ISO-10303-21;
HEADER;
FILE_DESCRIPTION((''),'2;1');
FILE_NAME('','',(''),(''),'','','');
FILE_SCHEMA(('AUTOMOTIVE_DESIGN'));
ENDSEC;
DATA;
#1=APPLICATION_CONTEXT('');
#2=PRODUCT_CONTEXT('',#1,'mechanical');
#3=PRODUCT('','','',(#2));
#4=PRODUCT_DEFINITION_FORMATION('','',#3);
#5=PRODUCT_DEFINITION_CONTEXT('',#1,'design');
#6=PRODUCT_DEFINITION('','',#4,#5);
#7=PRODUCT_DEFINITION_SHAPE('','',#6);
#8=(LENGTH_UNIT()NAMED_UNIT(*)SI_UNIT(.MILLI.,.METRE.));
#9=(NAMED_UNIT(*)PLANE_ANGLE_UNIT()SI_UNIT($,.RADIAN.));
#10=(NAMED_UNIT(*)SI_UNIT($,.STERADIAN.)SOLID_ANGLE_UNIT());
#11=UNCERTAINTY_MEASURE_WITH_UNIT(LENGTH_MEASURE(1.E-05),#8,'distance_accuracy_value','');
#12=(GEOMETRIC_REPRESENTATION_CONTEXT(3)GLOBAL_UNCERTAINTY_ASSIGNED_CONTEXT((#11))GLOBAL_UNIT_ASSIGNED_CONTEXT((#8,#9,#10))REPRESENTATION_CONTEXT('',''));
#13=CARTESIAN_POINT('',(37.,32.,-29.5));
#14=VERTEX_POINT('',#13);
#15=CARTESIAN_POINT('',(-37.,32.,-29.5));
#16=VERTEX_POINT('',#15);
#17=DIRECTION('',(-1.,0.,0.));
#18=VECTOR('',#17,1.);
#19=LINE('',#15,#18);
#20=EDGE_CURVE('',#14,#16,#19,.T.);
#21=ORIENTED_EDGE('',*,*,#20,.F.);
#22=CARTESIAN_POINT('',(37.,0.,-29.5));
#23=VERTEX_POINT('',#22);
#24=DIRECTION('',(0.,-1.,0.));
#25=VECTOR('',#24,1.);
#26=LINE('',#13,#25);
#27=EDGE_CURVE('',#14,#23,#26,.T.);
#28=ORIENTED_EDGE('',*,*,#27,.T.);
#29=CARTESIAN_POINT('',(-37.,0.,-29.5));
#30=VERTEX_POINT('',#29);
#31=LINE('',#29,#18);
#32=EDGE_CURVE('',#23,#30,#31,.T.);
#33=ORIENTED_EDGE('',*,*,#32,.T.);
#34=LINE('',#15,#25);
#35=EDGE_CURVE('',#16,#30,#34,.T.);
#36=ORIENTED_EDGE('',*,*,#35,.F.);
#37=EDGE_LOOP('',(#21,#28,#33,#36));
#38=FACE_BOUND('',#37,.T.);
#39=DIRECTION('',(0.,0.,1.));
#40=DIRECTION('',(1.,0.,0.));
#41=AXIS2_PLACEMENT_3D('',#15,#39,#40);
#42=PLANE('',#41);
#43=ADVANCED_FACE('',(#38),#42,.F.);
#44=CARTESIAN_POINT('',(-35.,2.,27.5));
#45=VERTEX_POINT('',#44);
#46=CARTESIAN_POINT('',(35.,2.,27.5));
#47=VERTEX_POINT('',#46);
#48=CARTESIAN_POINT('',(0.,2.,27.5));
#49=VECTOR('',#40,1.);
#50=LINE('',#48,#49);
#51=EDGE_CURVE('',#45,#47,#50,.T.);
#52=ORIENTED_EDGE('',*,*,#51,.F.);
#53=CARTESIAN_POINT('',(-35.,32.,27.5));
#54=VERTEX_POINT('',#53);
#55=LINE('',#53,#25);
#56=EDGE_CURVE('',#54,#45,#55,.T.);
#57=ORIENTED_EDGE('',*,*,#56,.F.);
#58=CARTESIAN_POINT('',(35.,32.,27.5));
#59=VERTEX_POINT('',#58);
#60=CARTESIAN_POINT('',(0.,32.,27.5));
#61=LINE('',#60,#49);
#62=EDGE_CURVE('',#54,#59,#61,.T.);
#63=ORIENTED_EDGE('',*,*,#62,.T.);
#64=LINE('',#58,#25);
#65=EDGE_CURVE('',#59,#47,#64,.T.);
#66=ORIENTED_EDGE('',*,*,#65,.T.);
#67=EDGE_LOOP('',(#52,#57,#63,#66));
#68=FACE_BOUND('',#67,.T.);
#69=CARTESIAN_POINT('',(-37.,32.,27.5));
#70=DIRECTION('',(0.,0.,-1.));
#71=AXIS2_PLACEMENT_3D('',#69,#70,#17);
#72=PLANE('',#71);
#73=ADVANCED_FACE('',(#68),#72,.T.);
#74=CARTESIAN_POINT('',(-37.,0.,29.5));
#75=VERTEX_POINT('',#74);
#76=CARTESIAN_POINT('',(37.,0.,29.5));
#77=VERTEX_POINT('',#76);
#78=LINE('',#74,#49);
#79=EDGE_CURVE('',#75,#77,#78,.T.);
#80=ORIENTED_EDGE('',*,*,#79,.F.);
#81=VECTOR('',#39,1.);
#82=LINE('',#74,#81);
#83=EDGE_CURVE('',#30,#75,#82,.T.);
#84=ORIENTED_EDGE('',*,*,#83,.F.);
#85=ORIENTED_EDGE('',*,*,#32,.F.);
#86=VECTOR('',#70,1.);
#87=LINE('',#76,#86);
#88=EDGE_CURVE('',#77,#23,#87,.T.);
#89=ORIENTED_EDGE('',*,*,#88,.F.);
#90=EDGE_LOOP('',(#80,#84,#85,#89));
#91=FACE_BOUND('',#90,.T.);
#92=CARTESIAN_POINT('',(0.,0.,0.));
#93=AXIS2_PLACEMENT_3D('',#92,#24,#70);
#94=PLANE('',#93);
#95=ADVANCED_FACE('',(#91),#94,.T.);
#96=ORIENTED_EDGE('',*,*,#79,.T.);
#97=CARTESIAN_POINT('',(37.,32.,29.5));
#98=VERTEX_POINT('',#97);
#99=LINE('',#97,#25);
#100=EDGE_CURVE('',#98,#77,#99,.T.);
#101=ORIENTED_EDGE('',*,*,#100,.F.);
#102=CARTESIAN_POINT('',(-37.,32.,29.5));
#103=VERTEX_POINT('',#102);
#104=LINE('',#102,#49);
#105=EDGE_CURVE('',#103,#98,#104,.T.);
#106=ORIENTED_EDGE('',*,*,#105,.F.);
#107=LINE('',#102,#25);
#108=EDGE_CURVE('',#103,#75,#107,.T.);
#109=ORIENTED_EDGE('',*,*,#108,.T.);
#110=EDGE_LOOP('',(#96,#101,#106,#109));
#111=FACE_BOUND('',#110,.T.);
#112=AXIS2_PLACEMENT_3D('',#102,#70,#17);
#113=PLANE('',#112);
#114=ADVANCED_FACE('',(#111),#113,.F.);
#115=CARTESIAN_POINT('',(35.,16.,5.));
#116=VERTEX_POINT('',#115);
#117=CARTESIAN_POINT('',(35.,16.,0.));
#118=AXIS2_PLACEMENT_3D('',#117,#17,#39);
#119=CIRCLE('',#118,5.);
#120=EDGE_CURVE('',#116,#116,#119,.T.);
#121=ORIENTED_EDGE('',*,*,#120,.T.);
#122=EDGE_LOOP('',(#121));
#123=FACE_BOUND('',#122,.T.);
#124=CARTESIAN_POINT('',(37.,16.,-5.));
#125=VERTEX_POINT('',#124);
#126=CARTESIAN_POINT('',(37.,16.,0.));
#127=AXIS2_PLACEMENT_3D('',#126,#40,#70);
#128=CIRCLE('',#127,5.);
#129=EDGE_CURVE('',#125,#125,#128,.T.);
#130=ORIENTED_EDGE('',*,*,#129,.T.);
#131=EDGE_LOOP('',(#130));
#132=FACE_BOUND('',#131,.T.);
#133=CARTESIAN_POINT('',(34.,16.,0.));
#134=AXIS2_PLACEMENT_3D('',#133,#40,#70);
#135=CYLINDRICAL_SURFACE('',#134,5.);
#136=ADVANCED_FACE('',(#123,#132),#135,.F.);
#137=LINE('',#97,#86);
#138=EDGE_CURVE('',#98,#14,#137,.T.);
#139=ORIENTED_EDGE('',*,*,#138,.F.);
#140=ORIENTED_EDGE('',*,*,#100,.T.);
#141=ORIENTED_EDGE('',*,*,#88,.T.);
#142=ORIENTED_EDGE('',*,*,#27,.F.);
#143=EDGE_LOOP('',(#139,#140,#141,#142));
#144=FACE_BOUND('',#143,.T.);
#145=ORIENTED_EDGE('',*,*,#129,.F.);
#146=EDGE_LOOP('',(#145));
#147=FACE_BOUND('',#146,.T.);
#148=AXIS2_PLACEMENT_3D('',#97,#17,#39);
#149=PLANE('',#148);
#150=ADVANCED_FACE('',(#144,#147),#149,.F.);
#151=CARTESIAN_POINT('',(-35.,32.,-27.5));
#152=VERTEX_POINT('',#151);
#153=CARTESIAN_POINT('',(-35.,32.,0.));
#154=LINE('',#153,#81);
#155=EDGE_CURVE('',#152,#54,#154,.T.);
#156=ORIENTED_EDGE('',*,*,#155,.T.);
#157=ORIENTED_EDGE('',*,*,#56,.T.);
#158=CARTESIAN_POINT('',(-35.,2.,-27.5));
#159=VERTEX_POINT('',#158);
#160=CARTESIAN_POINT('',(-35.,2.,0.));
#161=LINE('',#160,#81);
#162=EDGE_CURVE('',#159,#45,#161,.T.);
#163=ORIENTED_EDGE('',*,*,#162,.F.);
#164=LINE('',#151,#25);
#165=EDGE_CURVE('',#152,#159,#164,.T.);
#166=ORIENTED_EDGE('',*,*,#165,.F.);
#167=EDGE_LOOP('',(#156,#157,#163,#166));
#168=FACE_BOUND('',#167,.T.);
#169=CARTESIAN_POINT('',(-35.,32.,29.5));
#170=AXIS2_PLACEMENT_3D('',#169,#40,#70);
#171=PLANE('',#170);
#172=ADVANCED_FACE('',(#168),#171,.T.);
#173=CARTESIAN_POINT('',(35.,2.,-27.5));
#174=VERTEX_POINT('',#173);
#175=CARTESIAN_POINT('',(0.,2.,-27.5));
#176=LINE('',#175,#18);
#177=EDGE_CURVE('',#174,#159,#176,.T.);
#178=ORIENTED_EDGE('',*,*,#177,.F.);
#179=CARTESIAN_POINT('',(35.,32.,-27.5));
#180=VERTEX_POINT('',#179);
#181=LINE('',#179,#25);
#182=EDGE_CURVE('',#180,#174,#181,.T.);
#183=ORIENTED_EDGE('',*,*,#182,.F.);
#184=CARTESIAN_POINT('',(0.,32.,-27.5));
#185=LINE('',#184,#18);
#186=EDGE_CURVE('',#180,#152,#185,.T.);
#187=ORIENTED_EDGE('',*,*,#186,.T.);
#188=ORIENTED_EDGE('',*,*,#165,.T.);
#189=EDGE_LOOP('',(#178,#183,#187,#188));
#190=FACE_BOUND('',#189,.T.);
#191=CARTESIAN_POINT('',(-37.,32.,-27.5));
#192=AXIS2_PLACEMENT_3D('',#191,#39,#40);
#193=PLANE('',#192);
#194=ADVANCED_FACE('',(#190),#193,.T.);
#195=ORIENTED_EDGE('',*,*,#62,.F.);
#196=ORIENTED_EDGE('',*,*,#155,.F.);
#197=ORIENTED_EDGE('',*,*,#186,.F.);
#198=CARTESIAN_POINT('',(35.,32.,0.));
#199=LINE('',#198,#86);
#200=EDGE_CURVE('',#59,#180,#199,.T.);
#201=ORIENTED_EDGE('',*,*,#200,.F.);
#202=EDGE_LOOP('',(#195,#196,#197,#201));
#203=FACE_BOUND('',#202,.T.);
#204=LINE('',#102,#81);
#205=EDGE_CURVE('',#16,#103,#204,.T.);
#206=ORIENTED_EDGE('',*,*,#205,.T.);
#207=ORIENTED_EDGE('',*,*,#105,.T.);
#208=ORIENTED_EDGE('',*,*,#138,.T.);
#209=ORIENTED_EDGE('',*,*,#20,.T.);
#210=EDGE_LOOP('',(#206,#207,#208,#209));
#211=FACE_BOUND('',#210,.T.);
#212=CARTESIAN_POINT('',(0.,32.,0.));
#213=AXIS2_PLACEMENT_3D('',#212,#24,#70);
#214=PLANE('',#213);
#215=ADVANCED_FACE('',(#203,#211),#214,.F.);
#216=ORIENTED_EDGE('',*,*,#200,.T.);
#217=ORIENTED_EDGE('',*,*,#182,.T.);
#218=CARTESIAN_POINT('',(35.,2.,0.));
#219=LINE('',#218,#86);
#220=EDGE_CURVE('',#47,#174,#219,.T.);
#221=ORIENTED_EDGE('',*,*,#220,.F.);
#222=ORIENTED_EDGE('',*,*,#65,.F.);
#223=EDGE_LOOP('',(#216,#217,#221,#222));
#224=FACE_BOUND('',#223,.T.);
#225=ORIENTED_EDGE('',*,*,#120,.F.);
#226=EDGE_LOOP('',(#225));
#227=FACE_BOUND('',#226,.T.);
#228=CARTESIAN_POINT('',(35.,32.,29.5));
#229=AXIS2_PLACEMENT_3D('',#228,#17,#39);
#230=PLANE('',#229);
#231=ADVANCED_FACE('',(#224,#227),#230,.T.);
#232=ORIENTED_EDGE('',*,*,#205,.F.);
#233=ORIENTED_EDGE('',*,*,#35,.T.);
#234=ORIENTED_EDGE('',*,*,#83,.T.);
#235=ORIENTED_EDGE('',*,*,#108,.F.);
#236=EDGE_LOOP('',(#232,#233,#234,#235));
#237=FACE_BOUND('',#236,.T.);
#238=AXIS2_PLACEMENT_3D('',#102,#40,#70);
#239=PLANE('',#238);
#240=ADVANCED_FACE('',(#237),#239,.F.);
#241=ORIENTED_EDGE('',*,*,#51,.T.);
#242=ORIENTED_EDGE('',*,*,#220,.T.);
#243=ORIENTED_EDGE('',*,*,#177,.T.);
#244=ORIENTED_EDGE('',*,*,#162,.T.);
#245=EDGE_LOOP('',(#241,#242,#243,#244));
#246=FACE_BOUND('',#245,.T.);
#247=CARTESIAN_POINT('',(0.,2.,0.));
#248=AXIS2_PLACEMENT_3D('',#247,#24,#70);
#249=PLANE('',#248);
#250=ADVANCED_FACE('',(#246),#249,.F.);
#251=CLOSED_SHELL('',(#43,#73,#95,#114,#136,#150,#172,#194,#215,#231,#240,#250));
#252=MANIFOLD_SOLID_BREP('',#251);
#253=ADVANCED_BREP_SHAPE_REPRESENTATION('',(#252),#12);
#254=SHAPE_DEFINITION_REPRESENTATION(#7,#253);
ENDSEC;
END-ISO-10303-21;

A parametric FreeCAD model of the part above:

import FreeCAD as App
import Part
import Sketcher

V = App.Vector
Q = App.Units.Quantity


def faces_at(feature, points):
    """Names of the faces that lie closest to the given points."""
    faces = feature.Shape.Faces
    near = lambda p: min(range(len(faces)), key=lambda i: faces[i].distToShape(Part.Vertex(*p))[0])
    return sorted({f"Face{near(p) + 1}" for p in points})

doc = App.newDocument("Part")
body = doc.addObject("PartDesign::Body", "Body")

# Sketch on XZ plane
sketch1 = body.newObject("Sketcher::SketchObject", "Sketch")
sketch1.AttachmentSupport = (doc.getObject("XZ_Plane"), [""])
sketch1.MapMode = "FlatFace"
sketch1.addGeometry(Part.LineSegment(V(-37, -30, 0), V(-37, 30, 0)), False)
sketch1.addGeometry(Part.LineSegment(V(-37, 30, 0), V(37, 30, 0)), False)
sketch1.addGeometry(Part.LineSegment(V(37, 30, 0), V(37, -30, 0)), False)
sketch1.addGeometry(Part.LineSegment(V(37, -30, 0), V(-37, -30, 0)), False)
sketch1.addConstraint(Sketcher.Constraint("Coincident", 0, 2, 1, 1))
sketch1.addConstraint(Sketcher.Constraint("Coincident", 1, 2, 2, 1))
sketch1.addConstraint(Sketcher.Constraint("Coincident", 2, 2, 3, 1))
sketch1.addConstraint(Sketcher.Constraint("Coincident", 3, 2, 0, 1))
sketch1.addConstraint(Sketcher.Constraint("Vertical", 0))
sketch1.addConstraint(Sketcher.Constraint("Horizontal", 1))
sketch1.addConstraint(Sketcher.Constraint("Vertical", 2))
sketch1.addConstraint(Sketcher.Constraint("Horizontal", 3))
sketch1.addConstraint(Sketcher.Constraint("Symmetric", 0, 2, 2, 2, -1, 1))
sketch1.addConstraint(Sketcher.Constraint("DistanceX", 1, 1, 1, 2, Q("74 mm")))
sketch1.addConstraint(Sketcher.Constraint("DistanceY", 0, 1, 0, 2, Q("59 mm")))
pad1 = body.newObject("PartDesign::Pad", "Pad")
pad1.Profile = sketch1
pad1.Length = 32
pad1.Reversed = True
doc.recompute()

thickness = body.newObject("PartDesign::Thickness", "Thickness")
thickness.Base = (pad1, faces_at(pad1, [(0, 32, 0)]))
thickness.Value = 2
thickness.Reversed = True
thickness.Join = "Intersection"

# Sketch on YZ plane
sketch2 = body.newObject("Sketcher::SketchObject", "Sketch001")
sketch2.AttachmentSupport = (doc.getObject("YZ_Plane"), [""])
sketch2.MapMode = "FlatFace"
sketch2.AttachmentOffset = App.Placement(V(0, 0, 37), App.Rotation())
sketch2.addGeometry(Part.Circle(V(16, 0, 0), V(0, 0, 1), 5), False)
sketch2.addConstraint(Sketcher.Constraint("PointOnObject", 0, 3, -1))
sketch2.addConstraint(Sketcher.Constraint("Diameter", 0, Q("10 mm")))
sketch2.addConstraint(Sketcher.Constraint("DistanceX", -1, 1, 0, 3, Q("16 mm")))
pocket1 = body.newObject("PartDesign::Pocket", "Pocket")
pocket1.Profile = sketch2
pocket1.Length = 3

doc.recompute()
